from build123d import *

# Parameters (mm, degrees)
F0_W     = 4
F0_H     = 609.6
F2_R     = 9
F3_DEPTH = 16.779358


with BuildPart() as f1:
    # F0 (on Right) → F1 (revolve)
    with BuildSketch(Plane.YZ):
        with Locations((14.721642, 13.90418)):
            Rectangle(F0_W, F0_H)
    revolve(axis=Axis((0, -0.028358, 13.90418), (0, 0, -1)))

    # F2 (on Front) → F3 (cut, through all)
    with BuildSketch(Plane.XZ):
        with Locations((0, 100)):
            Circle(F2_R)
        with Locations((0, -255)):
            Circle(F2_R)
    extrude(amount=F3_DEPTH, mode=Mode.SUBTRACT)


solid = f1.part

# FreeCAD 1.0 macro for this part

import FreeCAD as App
import Part
import Sketcher
Q = App.Units.Quantity

doc = App.newDocument("Part")
body = doc.addObject("PartDesign::Body", "Body")

sketch1 = doc.addObject("Sketcher::SketchObject", "Sketch")
body.addObject(sketch1)
sketch1.AttachmentSupport = (doc.YZ_Plane, [""])
sketch1.MapMode = "FlatFace"
sketch1.addGeometry(Part.LineSegment(App.Vector(12.7, 318.7, 0), App.Vector(12.7, -290.9, 0)), False)
sketch1.addGeometry(Part.LineSegment(App.Vector(12.7, -290.9, 0), App.Vector(16.7, -290.9, 0)), False)
sketch1.addGeometry(Part.LineSegment(App.Vector(16.7, -290.9, 0), App.Vector(16.7, 318.7, 0)), False)
sketch1.addGeometry(Part.LineSegment(App.Vector(16.7, 318.7, 0), App.Vector(12.7, 318.7, 0)), False)
sketch1.addGeometry(Part.LineSegment(App.Vector(0, 318.7, 0), App.Vector(0, -290.9, 0)), True)
sketch1.addConstraint(Sketcher.Constraint("Coincident", 0, 2, 1, 1))
sketch1.addConstraint(Sketcher.Constraint("Coincident", 1, 2, 2, 1))
sketch1.addConstraint(Sketcher.Constraint("Coincident", 2, 2, 3, 1))
sketch1.addConstraint(Sketcher.Constraint("Coincident", 3, 2, 0, 1))
sketch1.addConstraint(Sketcher.Constraint("Vertical", 0))
sketch1.addConstraint(Sketcher.Constraint("Horizontal", 1))
sketch1.addConstraint(Sketcher.Constraint("Vertical", 2))
sketch1.addConstraint(Sketcher.Constraint("Horizontal", 3))
sketch1.addConstraint(Sketcher.Constraint("Vertical", 4))
sketch1.addConstraint(Sketcher.Constraint("Horizontal", 3, 2, 4, 1))
sketch1.addConstraint(Sketcher.Constraint("Horizontal", 1, 2, 4, 2))
sketch1.addConstraint(Sketcher.Constraint("DistanceX", 1, 1, 1, 2, Q("4 mm")))
sketch1.addConstraint(Sketcher.Constraint("DistanceY", 0, 2, 0, 1, Q("609.6 mm")))
sketch1.addConstraint(Sketcher.Constraint("DistanceX", 4, 1, 3, 2, Q("12.75 mm")))
sketch1.addConstraint(Sketcher.Constraint("DistanceX", -1, 1, 0, 2, Q("12.721642 mm")))
sketch1.addConstraint(Sketcher.Constraint("DistanceY", 0, 2, -1, 1, Q("290.89582 mm")))
revolution = doc.addObject("PartDesign::Revolution", "Revolution")
body.addObject(revolution)
revolution.Profile = sketch1
revolution.ReferenceAxis = (sketch1, ["Axis0"])
revolution.Angle = 360

sketch2 = doc.addObject("Sketcher::SketchObject", "Sketch001")
body.addObject(sketch2)
sketch2.AttachmentSupport = (doc.XZ_Plane, [""])
sketch2.MapMode = "FlatFace"
sketch2.addGeometry(Part.Circle(App.Vector(0, 100, 0), App.Vector(0, 0, 1), 9), False)
sketch2.addGeometry(Part.Circle(App.Vector(0, -255, 0), App.Vector(0, 0, 1), 9), False)
sketch2.addConstraint(Sketcher.Constraint("Equal", 0, 1))
sketch2.addConstraint(Sketcher.Constraint("PointOnObject", 0, 3, -2))
sketch2.addConstraint(Sketcher.Constraint("PointOnObject", 1, 3, -2))
sketch2.addConstraint(Sketcher.Constraint("Diameter", 0, Q("18 mm")))
sketch2.addConstraint(Sketcher.Constraint("DistanceY", -1, 1, 0, 3, Q("100 mm")))
sketch2.addConstraint(Sketcher.Constraint("DistanceY", 1, 3, -1, 1, Q("255 mm")))
pocket1 = doc.addObject("PartDesign::Pocket", "Pocket")
body.addObject(pocket1)
pocket1.Profile = sketch2
pocket1.Type = "ThroughAll"
pocket1.Reversed = True

doc.recompute()
